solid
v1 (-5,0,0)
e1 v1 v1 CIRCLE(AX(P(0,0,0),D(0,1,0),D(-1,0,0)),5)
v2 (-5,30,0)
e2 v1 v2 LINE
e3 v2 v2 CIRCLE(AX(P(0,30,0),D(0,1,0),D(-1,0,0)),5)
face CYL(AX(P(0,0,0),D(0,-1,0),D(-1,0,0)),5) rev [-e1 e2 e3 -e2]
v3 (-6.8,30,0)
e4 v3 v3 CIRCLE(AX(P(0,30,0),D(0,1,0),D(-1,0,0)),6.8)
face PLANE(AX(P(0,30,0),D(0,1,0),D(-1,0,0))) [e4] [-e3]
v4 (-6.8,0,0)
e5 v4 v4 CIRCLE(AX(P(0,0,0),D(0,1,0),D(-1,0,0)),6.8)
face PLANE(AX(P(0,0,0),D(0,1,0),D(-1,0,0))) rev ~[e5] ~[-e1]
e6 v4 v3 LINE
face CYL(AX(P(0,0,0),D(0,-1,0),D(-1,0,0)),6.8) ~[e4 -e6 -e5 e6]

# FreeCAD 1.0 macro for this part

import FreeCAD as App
import Part
import Sketcher
from FreeCAD import Vector

doc = App.newDocument("Part")
body = doc.addObject("PartDesign::Body", "Body")

# Sketch on XZ plane
sketch1 = body.newObject("Sketcher::SketchObject", "Sketch")
sketch1.AttachmentSupport = (doc.getObject("XZ_Plane"), [""])
sketch1.MapMode = "FlatFace"
sketch1.addGeometry([
    Part.Circle(Vector(0, 0, 0), Vector(0, 0, 1), 7),
    Part.Circle(Vector(0, 0, 0), Vector(0, 0, 1), 5),
], False)
sketch1.addConstraint([
    Sketcher.Constraint("Coincident", 0, 3, -1, 1),
    Sketcher.Constraint("Coincident", 1, 3, -1, 1),
    Sketcher.Constraint("Diameter", 1, 10.0),
    Sketcher.Constraint("Diameter", 0, 13.6),
])
pad1 = body.newObject("PartDesign::Pad", "Pad")
pad1.Profile = sketch1
pad1.Length = 30
pad1.Reversed = True

doc.recompute()
